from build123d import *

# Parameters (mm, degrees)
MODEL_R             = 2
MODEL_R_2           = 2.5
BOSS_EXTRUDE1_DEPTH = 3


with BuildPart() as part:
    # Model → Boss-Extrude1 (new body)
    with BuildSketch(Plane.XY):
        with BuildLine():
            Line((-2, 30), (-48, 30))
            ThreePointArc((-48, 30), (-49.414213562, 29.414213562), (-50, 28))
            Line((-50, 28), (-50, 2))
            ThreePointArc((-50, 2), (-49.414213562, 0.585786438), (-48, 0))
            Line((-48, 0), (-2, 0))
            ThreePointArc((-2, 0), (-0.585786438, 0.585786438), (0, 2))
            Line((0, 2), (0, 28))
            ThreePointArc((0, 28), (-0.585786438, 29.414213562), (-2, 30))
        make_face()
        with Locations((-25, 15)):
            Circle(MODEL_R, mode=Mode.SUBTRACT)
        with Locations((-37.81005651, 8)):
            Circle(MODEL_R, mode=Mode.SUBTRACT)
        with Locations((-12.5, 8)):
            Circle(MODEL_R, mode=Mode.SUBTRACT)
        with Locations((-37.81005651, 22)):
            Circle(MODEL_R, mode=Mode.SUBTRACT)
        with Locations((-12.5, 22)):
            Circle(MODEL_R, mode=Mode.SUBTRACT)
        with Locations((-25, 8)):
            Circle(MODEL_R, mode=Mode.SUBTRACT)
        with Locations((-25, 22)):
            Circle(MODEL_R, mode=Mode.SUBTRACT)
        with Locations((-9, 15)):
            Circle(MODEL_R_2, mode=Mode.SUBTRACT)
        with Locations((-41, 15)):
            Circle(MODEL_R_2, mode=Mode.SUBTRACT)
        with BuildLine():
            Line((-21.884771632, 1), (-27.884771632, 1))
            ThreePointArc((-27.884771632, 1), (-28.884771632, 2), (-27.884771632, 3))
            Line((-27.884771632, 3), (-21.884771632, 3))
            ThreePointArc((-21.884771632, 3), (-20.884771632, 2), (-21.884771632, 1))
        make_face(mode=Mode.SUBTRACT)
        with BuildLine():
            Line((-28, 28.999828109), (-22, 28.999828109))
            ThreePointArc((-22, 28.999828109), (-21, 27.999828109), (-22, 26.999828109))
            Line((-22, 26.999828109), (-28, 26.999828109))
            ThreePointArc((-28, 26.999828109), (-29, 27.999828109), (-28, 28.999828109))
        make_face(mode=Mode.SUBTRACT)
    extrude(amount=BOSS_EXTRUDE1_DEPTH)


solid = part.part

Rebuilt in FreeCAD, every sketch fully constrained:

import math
import FreeCAD as App
import Part
import Sketcher
from FreeCAD import Vector
Q = App.Units.Quantity

doc = App.newDocument("Part")
body = doc.addObject("PartDesign::Body", "Body")

sketch1 = body.newObject("Sketcher::SketchObject", "Sketch")
sketch1.AttachmentSupport = (doc.getObject("XY_Plane"), [""])
sketch1.MapMode = "FlatFace"
sketch1.addGeometry([
    Part.LineSegment(Vector(-2, 30, 0), Vector(-48, 30, 0)),
    Part.ArcOfCircle(Part.Circle(Vector(-48, 28, 0), Vector(0, 0, 1), 2), math.radians(90), math.radians(180)),
    Part.LineSegment(Vector(-50, 28, 0), Vector(-50, 2, 0)),
    Part.ArcOfCircle(Part.Circle(Vector(-48, 2, 0), Vector(0, 0, 1), 2), math.radians(-180), math.radians(-90)),
    Part.LineSegment(Vector(-48, 0, 0), Vector(-2, 0, 0)),
    Part.ArcOfCircle(Part.Circle(Vector(-2, 2, 0), Vector(0, 0, 1), 2), math.radians(-90), math.radians(0)),
    Part.LineSegment(Vector(0, 2, 0), Vector(0, 28, 0)),
    Part.ArcOfCircle(Part.Circle(Vector(-2, 28, 0), Vector(0, 0, 1), 2), math.radians(0), math.radians(90)),
    Part.Circle(Vector(-37.8, 8, 0), Vector(0, 0, 1), 2),
    Part.ArcOfCircle(Part.Circle(Vector(-21.9, 2, 0), Vector(0, 0, 1), 1), math.radians(-90), math.radians(90)),
    Part.LineSegment(Vector(-21.9, 1, 0), Vector(-27.9, 1, 0)),
    Part.ArcOfCircle(Part.Circle(Vector(-27.9, 2, 0), Vector(0, 0, 1), 1), math.radians(90), math.radians(270)),
    Part.LineSegment(Vector(-27.9, 3, 0), Vector(-21.9, 3, 0)),
    Part.Circle(Vector(-25, 8, 0), Vector(0, 0, 1), 2),
    Part.Circle(Vector(-12.5, 8, 0), Vector(0, 0, 1), 2),
    Part.Circle(Vector(-41, 15, 0), Vector(0, 0, 1), 2.5),
    Part.Circle(Vector(-37.8, 22, 0), Vector(0, 0, 1), 2),
    Part.Circle(Vector(-25, 15, 0), Vector(0, 0, 1), 2),
    Part.Circle(Vector(-9, 15, 0), Vector(0, 0, 1), 2.5),
    Part.Circle(Vector(-25, 22, 0), Vector(0, 0, 1), 2),
    Part.ArcOfCircle(Part.Circle(Vector(-28, 28, 0), Vector(0, 0, 1), 1), math.radians(90), math.radians(270)),
    Part.LineSegment(Vector(-28, 29, 0), Vector(-22, 29, 0)),
    Part.ArcOfCircle(Part.Circle(Vector(-22, 28, 0), Vector(0, 0, 1), 1), math.radians(-90), math.radians(90)),
    Part.LineSegment(Vector(-22, 27, 0), Vector(-28, 27, 0)),
    Part.Circle(Vector(-12.5, 22, 0), Vector(0, 0, 1), 2),
], False)
sketch1.addConstraint([
    Sketcher.Constraint("Tangent", 0, 2, 1, 1),
    Sketcher.Constraint("Tangent", 1, 2, 2, 1),
    Sketcher.Constraint("Tangent", 2, 2, 3, 1),
    Sketcher.Constraint("Tangent", 3, 2, 4, 1),
    Sketcher.Constraint("Tangent", 4, 2, 5, 1),
    Sketcher.Constraint("Tangent", 5, 2, 6, 1),
    Sketcher.Constraint("Tangent", 6, 2, 7, 1),
    Sketcher.Constraint("Tangent", 7, 2, 0, 1),
    Sketcher.Constraint("Tangent", 9, 1, 10, 1),
    Sketcher.Constraint("Tangent", 10, 2, 11, 2),
    Sketcher.Constraint("Tangent", 11, 1, 12, 1),
    Sketcher.Constraint("Tangent", 12, 2, 9, 2),
    Sketcher.Constraint("Tangent", 20, 1, 21, 1),
    Sketcher.Constraint("Tangent", 21, 2, 22, 2),
    Sketcher.Constraint("Tangent", 22, 1, 23, 1),
    Sketcher.Constraint("Tangent", 23, 2, 20, 2),
    Sketcher.Constraint("Horizontal", 0),
    Sketcher.Constraint("Vertical", 2),
    Sketcher.Constraint("Horizontal", 4),
    Sketcher.Constraint("Vertical", 6),
    Sketcher.Constraint("Horizontal", 10),
    Sketcher.Constraint("Horizontal", 12),
    Sketcher.Constraint("Horizontal", 21),
    Sketcher.Constraint("Horizontal", 23),
    Sketcher.Constraint("Equal", 1, 3),
    Sketcher.Constraint("Equal", 3, 5),
    Sketcher.Constraint("Equal", 5, 7),
    Sketcher.Constraint("Equal", 7, 8),
    Sketcher.Constraint("Equal", 8, 13),
    Sketcher.Constraint("Equal", 13, 14),
    Sketcher.Constraint("Equal", 14, 16),
    Sketcher.Constraint("Equal", 16, 17),
    Sketcher.Constraint("Equal", 15, 18),
    Sketcher.Constraint("Equal", 17, 19),
    Sketcher.Constraint("Equal", 11, 20),
    Sketcher.Constraint("Equal", 19, 24),
    Sketcher.Constraint("PointOnObject", 3, 2, -1),
    Sketcher.Constraint("PointOnObject", 5, 2, -2),
    Sketcher.Constraint("Horizontal", 5, 3, 9, 3),
    Sketcher.Constraint("Horizontal", 8, 3, 13, 3),
    Sketcher.Constraint("Horizontal", 13, 3, 14, 3),
    Sketcher.Constraint("Horizontal", 15, 3, 17, 3),
    Sketcher.Constraint("Horizontal", 17, 3, 18, 3),
    Sketcher.Constraint("Horizontal", 16, 3, 19, 3),
    Sketcher.Constraint("Horizontal", 19, 3, 24, 3),
    Sketcher.Constraint("Vertical", 8, 3, 16, 3),
    Sketcher.Constraint("Vertical", 13, 3, 17, 3),
    Sketcher.Constraint("Vertical", 17, 3, 19, 3),
    Sketcher.Constraint("Vertical", 14, 3, 24, 3),
    Sketcher.Constraint("Equal", 12, 21),
    Sketcher.Constraint("Diameter", 8, Q("4 mm")),
    Sketcher.Constraint("Diameter", 15, Q("5 mm")),
    Sketcher.Constraint("Radius", 9, Q("1 mm")),
    Sketcher.Constraint("DistanceX", 0, 2, 0, 1, Q("46 mm")),
    Sketcher.Constraint("DistanceX", 10, 2, 10, 1, Q("6 mm")),
    Sketcher.Constraint("DistanceY", 2, 2, 2, 1, Q("26 mm")),
    Sketcher.Constraint("DistanceY", -1, 1, 8, 3, Q("8 mm")),
    Sketcher.Constraint("DistanceX", 13, 3, -1, 1, Q("25 mm")),
    Sketcher.Constraint("DistanceX", 15, 3, -1, 1, Q("41 mm")),
    Sketcher.Constraint("DistanceY", -1, 1, 15, 3, Q("15 mm")),
    Sketcher.Constraint("DistanceY", -1, 1, 16, 3, Q("22 mm")),
    Sketcher.Constraint("DistanceX", 18, 3, -1, 1, Q("9 mm")),
    Sketcher.Constraint("DistanceX", 20, 3, -1, 1, Q("28 mm")),
    Sketcher.Constraint("DistanceX", 14, 3, -1, 1, Q("12.5 mm")),
    Sketcher.Constraint("DistanceX", 9, 3, -1, 1, Q("21.884772 mm")),
    Sketcher.Constraint("DistanceY", -1, 1, 20, 3, Q("27.999828 mm")),
    Sketcher.Constraint("DistanceX", 8, 3, -1, 1, Q("37.810057 mm")),
])
pad1 = body.newObject("PartDesign::Pad", "Pad")
pad1.Profile = sketch1
pad1.Length = 3

doc.recompute()
